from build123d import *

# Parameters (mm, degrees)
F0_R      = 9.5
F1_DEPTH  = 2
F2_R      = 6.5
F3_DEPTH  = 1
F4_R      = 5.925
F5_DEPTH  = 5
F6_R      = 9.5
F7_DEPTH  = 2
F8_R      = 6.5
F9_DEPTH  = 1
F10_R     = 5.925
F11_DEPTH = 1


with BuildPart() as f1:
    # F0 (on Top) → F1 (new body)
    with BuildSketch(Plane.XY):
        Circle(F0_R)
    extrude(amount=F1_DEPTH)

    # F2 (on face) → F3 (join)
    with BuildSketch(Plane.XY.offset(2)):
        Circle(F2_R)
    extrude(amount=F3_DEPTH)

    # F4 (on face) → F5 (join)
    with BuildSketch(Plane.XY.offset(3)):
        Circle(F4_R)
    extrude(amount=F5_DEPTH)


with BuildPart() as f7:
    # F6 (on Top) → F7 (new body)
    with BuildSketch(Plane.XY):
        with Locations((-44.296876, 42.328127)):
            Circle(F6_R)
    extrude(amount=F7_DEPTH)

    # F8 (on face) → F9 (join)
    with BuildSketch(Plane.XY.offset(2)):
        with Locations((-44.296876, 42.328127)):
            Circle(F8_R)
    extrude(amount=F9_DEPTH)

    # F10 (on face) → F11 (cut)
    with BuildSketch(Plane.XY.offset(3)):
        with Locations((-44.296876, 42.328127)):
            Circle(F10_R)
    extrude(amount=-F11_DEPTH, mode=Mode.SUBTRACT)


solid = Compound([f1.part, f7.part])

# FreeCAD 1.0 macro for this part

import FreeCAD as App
import Part
import Sketcher

doc = App.newDocument("Part")
params = doc.addObject("Spreadsheet::Sheet", "Params")
for row, (alias, value) in enumerate([
    ("sketch1_diameter", "19 mm"),
    ("pad1_length", "2 mm"),
    ("sketch2_diameter", "13 mm"),
    ("pad2_length", "1 mm"),
    ("sketch3_diameter", "11.85 mm"),
    ("pad3_length", "5 mm"),
    ("sketch4_diameter", "19 mm"),
    ("pad4_length", "2 mm"),
    ("sketch5_diameter", "13 mm"),
    ("pad5_length", "1 mm"),
    ("sketch6_diameter", "11.85 mm"),
    ("pocket1_length", "1 mm"),
], start=1):
    params.set(f"A{row}", alias)
    params.set(f"B{row}", "=" + value)
    params.setAlias(f"B{row}", alias)

body = doc.addObject("PartDesign::Body", "Body")

sketch1 = body.newObject("Sketcher::SketchObject", "Sketch")
sketch1.AttachmentSupport = (doc.getObject("XY_Plane"), [""])
sketch1.MapMode = "FlatFace"
sketch1.addGeometry(Part.Circle(App.Vector(0, 0, 0), App.Vector(0, 0, 1), 9.5), False)
sketch1.addConstraint(Sketcher.Constraint("Coincident", 0, 3, -1, 1))
sketch1.addConstraint(Sketcher.Constraint("Diameter", 0, 19.0))
sketch1.setExpression("Constraints[1]", "Params.sketch1_diameter")
pad1 = body.newObject("PartDesign::Pad", "Pad")
pad1.Profile = sketch1
pad1.setExpression("Length", "Params.pad1_length")

sketch2 = body.newObject("Sketcher::SketchObject", "Sketch001")
sketch2.AttachmentSupport = (doc.getObject("XY_Plane"), [""])
sketch2.MapMode = "FlatFace"
sketch2.AttachmentOffset = App.Placement(App.Vector(0, 0, 2), App.Rotation())
sketch2.addGeometry(Part.Circle(App.Vector(0, 0, 0), App.Vector(0, 0, 1), 6.5), False)
sketch2.addConstraint(Sketcher.Constraint("Coincident", 0, 3, -1, 1))
sketch2.addConstraint(Sketcher.Constraint("Diameter", 0, 13.0))
sketch2.setExpression("Constraints[1]", "Params.sketch2_diameter")
pad2 = body.newObject("PartDesign::Pad", "Pad001")
pad2.Profile = sketch2
pad2.setExpression("Length", "Params.pad2_length")

sketch3 = body.newObject("Sketcher::SketchObject", "Sketch002")
sketch3.AttachmentSupport = (doc.getObject("XY_Plane"), [""])
sketch3.MapMode = "FlatFace"
sketch3.AttachmentOffset = App.Placement(App.Vector(0, 0, 3), App.Rotation())
sketch3.addGeometry(Part.Circle(App.Vector(0, 0, 0), App.Vector(0, 0, 1), 5.925), False)
sketch3.addConstraint(Sketcher.Constraint("Coincident", 0, 3, -1, 1))
sketch3.addConstraint(Sketcher.Constraint("Diameter", 0, 11.85))
sketch3.setExpression("Constraints[1]", "Params.sketch3_diameter")
pad3 = body.newObject("PartDesign::Pad", "Pad002")
pad3.Profile = sketch3
pad3.setExpression("Length", "Params.pad3_length")
body2 = doc.addObject("PartDesign::Body", "Body001")

sketch4 = body2.newObject("Sketcher::SketchObject", "Sketch003")
sketch4.AttachmentSupport = (doc.getObject("XY_Plane001"), [""])
sketch4.MapMode = "FlatFace"
sketch4.addGeometry(Part.Circle(App.Vector(-44.296876, 42.328127, 0), App.Vector(0, 0, 1), 9.5), False)
sketch4.addConstraint(Sketcher.Constraint("Diameter", 0, 19.0))
sketch4.addConstraint(Sketcher.Constraint("DistanceX", 0, 3, -1, 1, 44.296876))
sketch4.addConstraint(Sketcher.Constraint("DistanceY", -1, 1, 0, 3, 42.328127))
sketch4.setExpression("Constraints[0]", "Params.sketch4_diameter")
pad4 = body2.newObject("PartDesign::Pad", "Pad003")
pad4.Profile = sketch4
pad4.setExpression("Length", "Params.pad4_length")

sketch5 = body2.newObject("Sketcher::SketchObject", "Sketch004")
sketch5.AttachmentSupport = (doc.getObject("XY_Plane001"), [""])
sketch5.MapMode = "FlatFace"
sketch5.AttachmentOffset = App.Placement(App.Vector(0, 0, 2), App.Rotation())
sketch5.addGeometry(Part.Circle(App.Vector(-44.296876, 42.328127, 0), App.Vector(0, 0, 1), 6.5), False)
sketch5.addConstraint(Sketcher.Constraint("Diameter", 0, 13.0))
sketch5.addConstraint(Sketcher.Constraint("DistanceX", 0, 3, -1, 1, 44.296876))
sketch5.addConstraint(Sketcher.Constraint("DistanceY", -1, 1, 0, 3, 42.328127))
sketch5.setExpression("Constraints[0]", "Params.sketch5_diameter")
pad5 = body2.newObject("PartDesign::Pad", "Pad004")
pad5.Profile = sketch5
pad5.setExpression("Length", "Params.pad5_length")

sketch6 = body2.newObject("Sketcher::SketchObject", "Sketch005")
sketch6.AttachmentSupport = (doc.getObject("XY_Plane001"), [""])
sketch6.MapMode = "FlatFace"
sketch6.AttachmentOffset = App.Placement(App.Vector(0, 0, 3), App.Rotation())
sketch6.addGeometry(Part.Circle(App.Vector(-44.296876, 42.328127, 0), App.Vector(0, 0, 1), 5.925), False)
sketch6.addConstraint(Sketcher.Constraint("Diameter", 0, 11.85))
sketch6.addConstraint(Sketcher.Constraint("DistanceX", 0, 3, -1, 1, 44.296876))
sketch6.addConstraint(Sketcher.Constraint("DistanceY", -1, 1, 0, 3, 42.328127))
sketch6.setExpression("Constraints[0]", "Params.sketch6_diameter")
pocket1 = body2.newObject("PartDesign::Pocket", "Pocket")
pocket1.Profile = sketch6
pocket1.setExpression("Length", "Params.pocket1_length")

doc.recompute()
